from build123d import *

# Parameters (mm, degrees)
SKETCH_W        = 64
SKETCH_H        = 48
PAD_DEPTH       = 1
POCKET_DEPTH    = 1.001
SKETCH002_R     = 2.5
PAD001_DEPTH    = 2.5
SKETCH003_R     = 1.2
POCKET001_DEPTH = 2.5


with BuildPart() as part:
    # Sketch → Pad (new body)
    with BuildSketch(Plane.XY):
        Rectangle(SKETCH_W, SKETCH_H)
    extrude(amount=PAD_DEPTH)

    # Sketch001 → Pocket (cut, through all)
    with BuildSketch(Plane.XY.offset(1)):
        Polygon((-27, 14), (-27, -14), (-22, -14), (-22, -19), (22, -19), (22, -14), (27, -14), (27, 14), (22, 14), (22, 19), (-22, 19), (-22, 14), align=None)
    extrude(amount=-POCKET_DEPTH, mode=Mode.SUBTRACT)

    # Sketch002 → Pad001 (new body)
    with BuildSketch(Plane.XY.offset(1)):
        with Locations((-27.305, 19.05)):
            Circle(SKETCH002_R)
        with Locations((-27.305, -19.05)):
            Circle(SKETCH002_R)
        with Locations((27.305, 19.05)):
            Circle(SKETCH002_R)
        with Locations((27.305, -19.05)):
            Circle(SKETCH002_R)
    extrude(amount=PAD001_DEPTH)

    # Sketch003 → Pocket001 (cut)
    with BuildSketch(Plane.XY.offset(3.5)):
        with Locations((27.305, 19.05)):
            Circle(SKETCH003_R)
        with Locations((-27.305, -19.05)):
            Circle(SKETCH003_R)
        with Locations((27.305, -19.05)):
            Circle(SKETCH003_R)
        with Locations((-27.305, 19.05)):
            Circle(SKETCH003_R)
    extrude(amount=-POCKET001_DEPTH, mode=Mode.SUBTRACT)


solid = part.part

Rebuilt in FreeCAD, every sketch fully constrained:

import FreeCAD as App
import Part
import Sketcher

V = App.Vector
Q = App.Units.Quantity

doc = App.newDocument("Part")
params = doc.addObject("Spreadsheet::Sheet", "Params")
for row, (alias, value) in enumerate([
    ("sketch1_width", "64 mm"),
    ("sketch1_height", "48 mm"),
    ("pad1_length", "1 mm"),
    ("sketch2_width", "5 mm"),
    ("sketch2_width2", "44 mm"),
    ("sketch2_height", "28 mm"),
    ("sketch3_diameter", "5 mm"),
    ("pad2_length", "2.5 mm"),
    ("sketch4_diameter", "2.4 mm"),
    ("pocket2_length", "2.5 mm"),
], start=1):
    params.set(f"A{row}", alias)
    params.set(f"B{row}", "=" + value)
    params.setAlias(f"B{row}", alias)

body = doc.addObject("PartDesign::Body", "Body")

sketch1 = body.newObject("Sketcher::SketchObject", "Sketch")
sketch1.AttachmentSupport = (doc.getObject("XY_Plane"), [""])
sketch1.MapMode = "FlatFace"
sketch1.addGeometry([
    Part.LineSegment(V(-32, 24, 0), V(-32, -24, 0)),
    Part.LineSegment(V(-32, -24, 0), V(32, -24, 0)),
    Part.LineSegment(V(32, -24, 0), V(32, 24, 0)),
    Part.LineSegment(V(32, 24, 0), V(-32, 24, 0)),
], False)
sketch1.addConstraint([
    Sketcher.Constraint("Coincident", 0, 2, 1, 1),
    Sketcher.Constraint("Coincident", 1, 2, 2, 1),
    Sketcher.Constraint("Coincident", 2, 2, 3, 1),
    Sketcher.Constraint("Coincident", 3, 2, 0, 1),
    Sketcher.Constraint("Vertical", 0),
    Sketcher.Constraint("Horizontal", 1),
    Sketcher.Constraint("Vertical", 2),
    Sketcher.Constraint("Horizontal", 3),
    Sketcher.Constraint("Symmetric", 0, 2, 2, 2, -1, 1),
    Sketcher.Constraint("DistanceX", 1, 1, 1, 2, Q("64 mm")),
    Sketcher.Constraint("DistanceY", 0, 2, 0, 1, Q("48 mm")),
])
sketch1.setExpression("Constraints[9]", "Params.sketch1_width")
sketch1.setExpression("Constraints[10]", "Params.sketch1_height")
pad1 = body.newObject("PartDesign::Pad", "Pad")
pad1.Profile = sketch1
pad1.setExpression("Length", "Params.pad1_length")

sketch2 = body.newObject("Sketcher::SketchObject", "Sketch001")
sketch2.AttachmentSupport = (doc.getObject("XY_Plane"), [""])
sketch2.MapMode = "FlatFace"
sketch2.AttachmentOffset = App.Placement(V(0, 0, 1), App.Rotation())
sketch2.addGeometry([
    Part.LineSegment(V(-27, 14, 0), V(-27, -14, 0)),
    Part.LineSegment(V(-27, -14, 0), V(-22, -14, 0)),
    Part.LineSegment(V(-22, -14, 0), V(-22, -19, 0)),
    Part.LineSegment(V(-22, -19, 0), V(22, -19, 0)),
    Part.LineSegment(V(22, -19, 0), V(22, -14, 0)),
    Part.LineSegment(V(22, -14, 0), V(27, -14, 0)),
    Part.LineSegment(V(27, -14, 0), V(27, 14, 0)),
    Part.LineSegment(V(27, 14, 0), V(22, 14, 0)),
    Part.LineSegment(V(22, 14, 0), V(22, 19, 0)),
    Part.LineSegment(V(22, 19, 0), V(-22, 19, 0)),
    Part.LineSegment(V(-22, 19, 0), V(-22, 14, 0)),
    Part.LineSegment(V(-22, 14, 0), V(-27, 14, 0)),
], False)
sketch2.addConstraint([
    Sketcher.Constraint("Coincident", 0, 2, 1, 1),
    Sketcher.Constraint("Coincident", 1, 2, 2, 1),
    Sketcher.Constraint("Coincident", 2, 2, 3, 1),
    Sketcher.Constraint("Coincident", 3, 2, 4, 1),
    Sketcher.Constraint("Coincident", 4, 2, 5, 1),
    Sketcher.Constraint("Coincident", 5, 2, 6, 1),
    Sketcher.Constraint("Coincident", 6, 2, 7, 1),
    Sketcher.Constraint("Coincident", 7, 2, 8, 1),
    Sketcher.Constraint("Coincident", 8, 2, 9, 1),
    Sketcher.Constraint("Coincident", 9, 2, 10, 1),
    Sketcher.Constraint("Coincident", 10, 2, 11, 1),
    Sketcher.Constraint("Coincident", 11, 2, 0, 1),
    Sketcher.Constraint("Vertical", 0),
    Sketcher.Constraint("Horizontal", 1),
    Sketcher.Constraint("Vertical", 2),
    Sketcher.Constraint("Horizontal", 3),
    Sketcher.Constraint("Vertical", 4),
    Sketcher.Constraint("Horizontal", 5),
    Sketcher.Constraint("Vertical", 6),
    Sketcher.Constraint("Horizontal", 7),
    Sketcher.Constraint("Vertical", 8),
    Sketcher.Constraint("Horizontal", 9),
    Sketcher.Constraint("Vertical", 10),
    Sketcher.Constraint("Horizontal", 11),
    Sketcher.Constraint("Symmetric", 0, 2, 6, 2, -1, 1),
    Sketcher.Constraint("Symmetric", 2, 2, 8, 2, -1, 1),
    Sketcher.Constraint("Symmetric", 4, 2, 10, 2, -1, 1),
    Sketcher.Constraint("Symmetric", 1, 2, 4, 2, -2),
    Sketcher.Constraint("Equal", 11, 2),
    Sketcher.Constraint("DistanceX", 1, 1, 1, 2, Q("5 mm")),
    Sketcher.Constraint("DistanceX", 3, 1, 3, 2, Q("44 mm")),
    Sketcher.Constraint("DistanceY", 0, 2, 0, 1, Q("28 mm")),
])
sketch2.setExpression("Constraints[29]", "Params.sketch2_width")
sketch2.setExpression("Constraints[30]", "Params.sketch2_width2")
sketch2.setExpression("Constraints[31]", "Params.sketch2_height")
pocket1 = body.newObject("PartDesign::Pocket", "Pocket")
pocket1.Profile = sketch2
pocket1.Type = "ThroughAll"

sketch3 = body.newObject("Sketcher::SketchObject", "Sketch002")
sketch3.AttachmentSupport = (doc.getObject("XY_Plane"), [""])
sketch3.MapMode = "FlatFace"
sketch3.AttachmentOffset = App.Placement(V(0, 0, 1), App.Rotation())
sketch3.addGeometry([
    Part.Circle(V(-27.305, 19.05, 0), V(0, 0, 1), 2.5),
    Part.Circle(V(-27.305, -19.05, 0), V(0, 0, 1), 2.5),
    Part.Circle(V(27.305, 19.05, 0), V(0, 0, 1), 2.5),
    Part.Circle(V(27.305, -19.05, 0), V(0, 0, 1), 2.5),
], False)
sketch3.addConstraint([
    Sketcher.Constraint("Equal", 0, 1),
    Sketcher.Constraint("Equal", 1, 2),
    Sketcher.Constraint("Equal", 2, 3),
    Sketcher.Constraint("Symmetric", 1, 3, 2, 3, -1, 1),
    Sketcher.Constraint("Symmetric", 0, 3, 3, 3, -1, 1),
    Sketcher.Constraint("Symmetric", 0, 3, 2, 3, -2),
    Sketcher.Constraint("Diameter", 0, Q("5 mm")),
    Sketcher.Constraint("DistanceY", 1, 3, 0, 3, Q("38.1 mm")),
    Sketcher.Constraint("DistanceX", 0, 3, 2, 3, Q("54.61 mm")),
])
sketch3.setExpression("Constraints[6]", "Params.sketch3_diameter")
pad2 = body.newObject("PartDesign::Pad", "Pad001")
pad2.Profile = sketch3
pad2.setExpression("Length", "Params.pad2_length")

sketch4 = body.newObject("Sketcher::SketchObject", "Sketch003")
sketch4.AttachmentSupport = (doc.getObject("XY_Plane"), [""])
sketch4.MapMode = "FlatFace"
sketch4.AttachmentOffset = App.Placement(V(0, 0, 3.5), App.Rotation())
sketch4.addGeometry([
    Part.Circle(V(27.305, 19.05, 0), V(0, 0, 1), 1.2),
    Part.Circle(V(-27.305, -19.05, 0), V(0, 0, 1), 1.2),
    Part.Circle(V(27.305, -19.05, 0), V(0, 0, 1), 1.2),
    Part.Circle(V(-27.305, 19.05, 0), V(0, 0, 1), 1.2),
], False)
sketch4.addConstraint([
    Sketcher.Constraint("Equal", 0, 1),
    Sketcher.Constraint("Equal", 1, 2),
    Sketcher.Constraint("Equal", 2, 3),
    Sketcher.Constraint("Symmetric", 0, 3, 1, 3, -1, 1),
    Sketcher.Constraint("Symmetric", 2, 3, 3, 3, -1, 1),
    Sketcher.Constraint("Symmetric", 1, 3, 2, 3, -2),
    Sketcher.Constraint("Diameter", 0, Q("2.4 mm")),
    Sketcher.Constraint("DistanceY", 1, 3, 0, 3, Q("38.1 mm")),
    Sketcher.Constraint("DistanceX", 1, 3, 0, 3, Q("54.61 mm")),
])
sketch4.setExpression("Constraints[6]", "Params.sketch4_diameter")
pocket2 = body.newObject("PartDesign::Pocket", "Pocket001")
pocket2.Profile = sketch4
pocket2.setExpression("Length", "Params.pocket2_length")

doc.recompute()
